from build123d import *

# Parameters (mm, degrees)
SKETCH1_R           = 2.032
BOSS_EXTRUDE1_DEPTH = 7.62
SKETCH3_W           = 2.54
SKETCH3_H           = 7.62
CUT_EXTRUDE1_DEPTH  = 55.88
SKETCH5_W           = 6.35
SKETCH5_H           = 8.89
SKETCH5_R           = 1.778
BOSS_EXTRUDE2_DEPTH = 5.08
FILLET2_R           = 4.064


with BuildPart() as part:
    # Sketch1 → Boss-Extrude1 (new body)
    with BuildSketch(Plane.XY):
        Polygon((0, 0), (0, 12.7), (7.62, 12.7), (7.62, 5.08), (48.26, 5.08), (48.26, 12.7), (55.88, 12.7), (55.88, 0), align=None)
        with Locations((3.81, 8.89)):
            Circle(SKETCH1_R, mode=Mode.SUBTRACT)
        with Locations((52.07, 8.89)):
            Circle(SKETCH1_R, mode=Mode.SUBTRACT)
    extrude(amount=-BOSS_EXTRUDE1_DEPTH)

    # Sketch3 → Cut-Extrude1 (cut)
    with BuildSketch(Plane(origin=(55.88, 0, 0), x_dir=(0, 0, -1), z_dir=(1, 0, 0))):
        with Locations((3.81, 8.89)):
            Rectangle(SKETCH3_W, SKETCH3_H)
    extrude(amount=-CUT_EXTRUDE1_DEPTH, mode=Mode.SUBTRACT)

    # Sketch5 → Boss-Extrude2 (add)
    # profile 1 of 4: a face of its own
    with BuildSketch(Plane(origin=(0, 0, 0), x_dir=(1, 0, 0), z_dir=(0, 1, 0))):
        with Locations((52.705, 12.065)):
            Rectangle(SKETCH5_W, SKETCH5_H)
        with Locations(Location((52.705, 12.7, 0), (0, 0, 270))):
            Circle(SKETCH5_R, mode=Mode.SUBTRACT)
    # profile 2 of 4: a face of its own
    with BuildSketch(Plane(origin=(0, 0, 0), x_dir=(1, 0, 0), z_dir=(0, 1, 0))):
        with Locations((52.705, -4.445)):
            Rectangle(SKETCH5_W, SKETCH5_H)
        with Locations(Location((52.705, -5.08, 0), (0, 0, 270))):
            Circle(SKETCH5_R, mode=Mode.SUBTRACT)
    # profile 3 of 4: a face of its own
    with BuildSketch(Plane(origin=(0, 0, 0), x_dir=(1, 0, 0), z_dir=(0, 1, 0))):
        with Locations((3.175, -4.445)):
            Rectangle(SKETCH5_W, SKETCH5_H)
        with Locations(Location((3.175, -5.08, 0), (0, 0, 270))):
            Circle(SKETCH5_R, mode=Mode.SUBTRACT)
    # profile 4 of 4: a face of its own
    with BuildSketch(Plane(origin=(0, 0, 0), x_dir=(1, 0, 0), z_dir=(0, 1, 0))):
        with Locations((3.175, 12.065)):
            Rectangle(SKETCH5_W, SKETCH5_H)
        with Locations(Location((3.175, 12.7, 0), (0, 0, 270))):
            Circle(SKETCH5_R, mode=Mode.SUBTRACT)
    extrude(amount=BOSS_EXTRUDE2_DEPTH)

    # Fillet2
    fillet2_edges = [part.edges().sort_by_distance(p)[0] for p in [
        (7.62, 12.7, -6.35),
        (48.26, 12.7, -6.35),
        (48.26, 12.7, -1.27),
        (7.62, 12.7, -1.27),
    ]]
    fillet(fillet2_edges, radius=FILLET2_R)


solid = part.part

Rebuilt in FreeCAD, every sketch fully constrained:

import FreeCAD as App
import Part
import Sketcher
from FreeCAD import Vector
Q = App.Units.Quantity


def edges_at(feature, points):
    """Names of the edges that pass closest to the given points."""
    edges = feature.Shape.Edges
    near = lambda p: min(range(len(edges)), key=lambda i: edges[i].distToShape(Part.Vertex(*p))[0])
    return sorted({f"Edge{near(p) + 1}" for p in points})

doc = App.newDocument("Part")
body = doc.addObject("PartDesign::Body", "Body")

# Sketch on XY plane
sketch1 = body.newObject("Sketcher::SketchObject", "Sketch")
sketch1.AttachmentSupport = (doc.getObject("XY_Plane"), [""])
sketch1.MapMode = "FlatFace"
sketch1.addGeometry([
    Part.LineSegment(Vector(0, 12.7, 0), Vector(0, 0, 0)),  # 0
    Part.LineSegment(Vector(0, 0, 0), Vector(55.9, 0, 0)),  # 1
    Part.LineSegment(Vector(55.9, 0, 0), Vector(55.9, 12.7, 0)),  # 2
    Part.LineSegment(Vector(55.9, 12.7, 0), Vector(48.3, 12.7, 0)),  # 3
    Part.LineSegment(Vector(48.3, 12.7, 0), Vector(48.3, 5.1, 0)),  # 4
    Part.LineSegment(Vector(48.3, 5.1, 0), Vector(7.6, 5.1, 0)),  # 5
    Part.LineSegment(Vector(7.6, 5.1, 0), Vector(7.6, 12.7, 0)),  # 6
    Part.LineSegment(Vector(7.6, 12.7, 0), Vector(0, 12.7, 0)),  # 7
    Part.Circle(Vector(52.1, 8.9, 0), Vector(0, 0, 1), 2),  # 8
    Part.Circle(Vector(3.8, 8.9, 0), Vector(0, 0, 1), 2),  # 9
], False)
sketch1.addConstraint([
    Sketcher.Constraint("Coincident", 0, 2, 1, 1),
    Sketcher.Constraint("Coincident", 1, 2, 2, 1),
    Sketcher.Constraint("Coincident", 2, 2, 3, 1),
    Sketcher.Constraint("Coincident", 3, 2, 4, 1),
    Sketcher.Constraint("Coincident", 4, 2, 5, 1),
    Sketcher.Constraint("Coincident", 5, 2, 6, 1),
    Sketcher.Constraint("Coincident", 6, 2, 7, 1),
    Sketcher.Constraint("Coincident", 7, 2, 0, 1),
    Sketcher.Constraint("Vertical", 0),
    Sketcher.Constraint("Horizontal", 1),
    Sketcher.Constraint("Vertical", 2),
    Sketcher.Constraint("Horizontal", 3),
    Sketcher.Constraint("Vertical", 4),
    Sketcher.Constraint("Horizontal", 5),
    Sketcher.Constraint("Vertical", 6),
    Sketcher.Constraint("Horizontal", 7),
    Sketcher.Constraint("Coincident", 0, 2, -1, 1),
    Sketcher.Constraint("Equal", 8, 9),
    Sketcher.Constraint("Horizontal", 8, 3, 9, 3),
    Sketcher.Constraint("Horizontal", 3, 2, 6, 2),
    Sketcher.Constraint("Equal", 3, 7),
    Sketcher.Constraint("Equal", 7, 4),
    Sketcher.Constraint("Diameter", 8, Q("0.16 in")),
    Sketcher.Constraint("DistanceX", 1, 1, 1, 2, Q("2.2 in")),
    Sketcher.Constraint("DistanceX", 3, 2, 3, 1, Q("0.3 in")),
    Sketcher.Constraint("DistanceY", 0, 2, 0, 1, Q("0.5 in")),
    Sketcher.Constraint("DistanceX", 9, 3, 8, 3, Q("1.9 in")),
    Sketcher.Constraint("DistanceX", -1, 1, 8, 3, Q("2.05 in")),
    Sketcher.Constraint("DistanceY", -1, 1, 8, 3, Q("0.35 in")),
])
pad1 = body.newObject("PartDesign::Pad", "Pad")
pad1.Profile = sketch1
pad1.Length = Q("0.3 in")
pad1.Reversed = True

# Sketch on YZ plane
sketch2 = body.newObject("Sketcher::SketchObject", "Sketch001")
sketch2.AttachmentSupport = (doc.getObject("YZ_Plane"), [""])
sketch2.MapMode = "FlatFace"
sketch2.AttachmentOffset = App.Placement(Vector(0, 0, 2.2 * 25.4), App.Rotation())
sketch2.addGeometry([
    Part.LineSegment(Vector(12.7, -2.5, 0), Vector(5.1, -2.5, 0)),
    Part.LineSegment(Vector(5.1, -2.5, 0), Vector(5.1, -5.1, 0)),
    Part.LineSegment(Vector(5.1, -5.1, 0), Vector(12.7, -5.1, 0)),
    Part.LineSegment(Vector(12.7, -5.1, 0), Vector(12.7, -2.5, 0)),
], False)
sketch2.addConstraint([
    Sketcher.Constraint("Coincident", 0, 2, 1, 1),
    Sketcher.Constraint("Coincident", 1, 2, 2, 1),
    Sketcher.Constraint("Coincident", 2, 2, 3, 1),
    Sketcher.Constraint("Coincident", 3, 2, 0, 1),
    Sketcher.Constraint("Horizontal", 0),
    Sketcher.Constraint("Vertical", 1),
    Sketcher.Constraint("Horizontal", 2),
    Sketcher.Constraint("Vertical", 3),
    Sketcher.Constraint("DistanceX", 0, 2, 0, 1, Q("0.3 in")),
    Sketcher.Constraint("DistanceY", 1, 2, 1, 1, Q("0.1 in")),
    Sketcher.Constraint("DistanceX", -1, 1, 0, 2, Q("0.2 in")),
    Sketcher.Constraint("DistanceY", 0, 2, -1, 1, Q("0.1 in")),
])
pocket1 = body.newObject("PartDesign::Pocket", "Pocket")
pocket1.Profile = sketch2
pocket1.Length = Q("2.2 in")

# Sketch on XZ plane
sketch3 = body.newObject("Sketcher::SketchObject", "Sketch002")
sketch3.AttachmentSupport = (doc.getObject("XZ_Plane"), [""])
sketch3.MapMode = "FlatFace"
sketch3.addGeometry([
    Part.LineSegment(Vector(49.5, -16.5, 0), Vector(49.5, -7.6, 0)),  # 0
    Part.LineSegment(Vector(49.5, -7.6, 0), Vector(55.9, -7.6, 0)),  # 1
    Part.LineSegment(Vector(55.9, -7.6, 0), Vector(55.9, -16.5, 0)),  # 2
    Part.LineSegment(Vector(55.9, -16.5, 0), Vector(49.5, -16.5, 0)),  # 3
    Part.Circle(Vector(52.7, -12.7, 0), Vector(0, 0, 1), 1.8),  # 4
    Part.LineSegment(Vector(49.5, 0, 0), Vector(49.5, 8.9, 0)),  # 5
    Part.LineSegment(Vector(49.5, 8.9, 0), Vector(55.9, 8.9, 0)),  # 6
    Part.LineSegment(Vector(55.9, 8.9, 0), Vector(55.9, 0, 0)),  # 7
    Part.LineSegment(Vector(55.9, 0, 0), Vector(49.5, 0, 0)),  # 8
    Part.Circle(Vector(52.7, 5.1, 0), Vector(0, 0, 1), 1.8),  # 9
    Part.LineSegment(Vector(0, 0, 0), Vector(0, 8.9, 0)),  # 10
    Part.LineSegment(Vector(0, 8.9, 0), Vector(6.3, 8.9, 0)),  # 11
    Part.LineSegment(Vector(6.3, 8.9, 0), Vector(6.3, 0, 0)),  # 12
    Part.LineSegment(Vector(6.3, 0, 0), Vector(0, 0, 0)),  # 13
    Part.Circle(Vector(3.2, 5.1, 0), Vector(0, 0, 1), 1.8),  # 14
    Part.LineSegment(Vector(0, -16.5, 0), Vector(0, -7.6, 0)),  # 15
    Part.LineSegment(Vector(0, -7.6, 0), Vector(6.3, -7.6, 0)),  # 16
    Part.LineSegment(Vector(6.3, -7.6, 0), Vector(6.3, -16.5, 0)),  # 17
    Part.LineSegment(Vector(6.3, -16.5, 0), Vector(0, -16.5, 0)),  # 18
    Part.Circle(Vector(3.2, -12.7, 0), Vector(0, 0, 1), 1.8),  # 19
], False)
sketch3.addConstraint([
    Sketcher.Constraint("Coincident", 0, 2, 1, 1),
    Sketcher.Constraint("Coincident", 1, 2, 2, 1),
    Sketcher.Constraint("Coincident", 2, 2, 3, 1),
    Sketcher.Constraint("Coincident", 3, 2, 0, 1),
    Sketcher.Constraint("Coincident", 5, 2, 6, 1),
    Sketcher.Constraint("Coincident", 6, 2, 7, 1),
    Sketcher.Constraint("Coincident", 7, 2, 8, 1),
    Sketcher.Constraint("Coincident", 8, 2, 5, 1),
    Sketcher.Constraint("Coincident", 10, 2, 11, 1),
    Sketcher.Constraint("Coincident", 11, 2, 12, 1),
    Sketcher.Constraint("Coincident", 12, 2, 13, 1),
    Sketcher.Constraint("Coincident", 13, 2, 10, 1),
    Sketcher.Constraint("Coincident", 15, 2, 16, 1),
    Sketcher.Constraint("Coincident", 16, 2, 17, 1),
    Sketcher.Constraint("Coincident", 17, 2, 18, 1),
    Sketcher.Constraint("Coincident", 18, 2, 15, 1),
    Sketcher.Constraint("Vertical", 0),
    Sketcher.Constraint("Horizontal", 1),
    Sketcher.Constraint("Vertical", 2),
    Sketcher.Constraint("Horizontal", 3),
    Sketcher.Constraint("Vertical", 5),
    Sketcher.Constraint("Horizontal", 6),
    Sketcher.Constraint("Vertical", 7),
    Sketcher.Constraint("Horizontal", 8),
    Sketcher.Constraint("Vertical", 10),
    Sketcher.Constraint("Horizontal", 11),
    Sketcher.Constraint("Vertical", 12),
    Sketcher.Constraint("Horizontal", 13),
    Sketcher.Constraint("Vertical", 15),
    Sketcher.Constraint("Horizontal", 16),
    Sketcher.Constraint("Vertical", 17),
    Sketcher.Constraint("Horizontal", 18),
    Sketcher.Constraint("Coincident", 13, 2, -1, 1),
    Sketcher.Constraint("Equal", 4, 9),
    Sketcher.Constraint("Equal", 9, 14),
    Sketcher.Constraint("Equal", 14, 19),
    Sketcher.Constraint("PointOnObject", 7, 2, -1),
    Sketcher.Constraint("PointOnObject", 15, 2, -2),
    Sketcher.Constraint("Horizontal", 9, 3, 14, 3),
    Sketcher.Constraint("Horizontal", 4, 3, 19, 3),
    Sketcher.Constraint("Horizontal", 6, 2, 10, 2),
    Sketcher.Constraint("Horizontal", 1, 2, 15, 2),
    Sketcher.Constraint("Horizontal", 3, 2, 17, 2),
    Sketcher.Constraint("Vertical", 4, 3, 9, 3),
    Sketcher.Constraint("Vertical", 14, 3, 19, 3),
    Sketcher.Constraint("Vertical", 3, 2, 5, 2),
    Sketcher.Constraint("Vertical", 2, 2, 6, 2),
    Sketcher.Constraint("Vertical", 12, 2, 16, 2),
    Sketcher.Constraint("Equal", 8, 11),
    Sketcher.Constraint("Equal", 2, 5),
    Sketcher.Constraint("Diameter", 4, Q("0.14 in")),
    Sketcher.Constraint("DistanceY", 3, 2, 5, 2, Q("1 in")),
    Sketcher.Constraint("DistanceX", 1, 1, 1, 2, Q("0.25 in")),
    Sketcher.Constraint("DistanceY", 0, 1, 0, 2, Q("0.35 in")),
    Sketcher.Constraint("DistanceY", 4, 3, -1, 1, Q("0.5 in")),
    Sketcher.Constraint("DistanceY", -1, 1, 9, 3, Q("0.2 in")),
    Sketcher.Constraint("DistanceX", -1, 1, 1, 2, Q("2.2 in")),
    Sketcher.Constraint("DistanceX", 14, 3, 9, 3, Q("1.95 in")),
    Sketcher.Constraint("DistanceX", -1, 1, 4, 3, Q("2.075 in")),
])
pad2 = body.newObject("PartDesign::Pad", "Pad001")
pad2.Profile = sketch3
pad2.Length = Q("0.2 in")
pad2.Reversed = True
doc.recompute()

fillet = body.newObject("PartDesign::Fillet", "Fillet")
fillet.Base = (pad2, edges_at(pad2, [
    (7.62, 12.7, -6.35),
    (48.26, 12.7, -6.35),
    (48.26, 12.7, -1.27),
    (7.62, 12.7, -1.27),
]))
fillet.Radius = Q("0.16 in")

doc.recompute()
